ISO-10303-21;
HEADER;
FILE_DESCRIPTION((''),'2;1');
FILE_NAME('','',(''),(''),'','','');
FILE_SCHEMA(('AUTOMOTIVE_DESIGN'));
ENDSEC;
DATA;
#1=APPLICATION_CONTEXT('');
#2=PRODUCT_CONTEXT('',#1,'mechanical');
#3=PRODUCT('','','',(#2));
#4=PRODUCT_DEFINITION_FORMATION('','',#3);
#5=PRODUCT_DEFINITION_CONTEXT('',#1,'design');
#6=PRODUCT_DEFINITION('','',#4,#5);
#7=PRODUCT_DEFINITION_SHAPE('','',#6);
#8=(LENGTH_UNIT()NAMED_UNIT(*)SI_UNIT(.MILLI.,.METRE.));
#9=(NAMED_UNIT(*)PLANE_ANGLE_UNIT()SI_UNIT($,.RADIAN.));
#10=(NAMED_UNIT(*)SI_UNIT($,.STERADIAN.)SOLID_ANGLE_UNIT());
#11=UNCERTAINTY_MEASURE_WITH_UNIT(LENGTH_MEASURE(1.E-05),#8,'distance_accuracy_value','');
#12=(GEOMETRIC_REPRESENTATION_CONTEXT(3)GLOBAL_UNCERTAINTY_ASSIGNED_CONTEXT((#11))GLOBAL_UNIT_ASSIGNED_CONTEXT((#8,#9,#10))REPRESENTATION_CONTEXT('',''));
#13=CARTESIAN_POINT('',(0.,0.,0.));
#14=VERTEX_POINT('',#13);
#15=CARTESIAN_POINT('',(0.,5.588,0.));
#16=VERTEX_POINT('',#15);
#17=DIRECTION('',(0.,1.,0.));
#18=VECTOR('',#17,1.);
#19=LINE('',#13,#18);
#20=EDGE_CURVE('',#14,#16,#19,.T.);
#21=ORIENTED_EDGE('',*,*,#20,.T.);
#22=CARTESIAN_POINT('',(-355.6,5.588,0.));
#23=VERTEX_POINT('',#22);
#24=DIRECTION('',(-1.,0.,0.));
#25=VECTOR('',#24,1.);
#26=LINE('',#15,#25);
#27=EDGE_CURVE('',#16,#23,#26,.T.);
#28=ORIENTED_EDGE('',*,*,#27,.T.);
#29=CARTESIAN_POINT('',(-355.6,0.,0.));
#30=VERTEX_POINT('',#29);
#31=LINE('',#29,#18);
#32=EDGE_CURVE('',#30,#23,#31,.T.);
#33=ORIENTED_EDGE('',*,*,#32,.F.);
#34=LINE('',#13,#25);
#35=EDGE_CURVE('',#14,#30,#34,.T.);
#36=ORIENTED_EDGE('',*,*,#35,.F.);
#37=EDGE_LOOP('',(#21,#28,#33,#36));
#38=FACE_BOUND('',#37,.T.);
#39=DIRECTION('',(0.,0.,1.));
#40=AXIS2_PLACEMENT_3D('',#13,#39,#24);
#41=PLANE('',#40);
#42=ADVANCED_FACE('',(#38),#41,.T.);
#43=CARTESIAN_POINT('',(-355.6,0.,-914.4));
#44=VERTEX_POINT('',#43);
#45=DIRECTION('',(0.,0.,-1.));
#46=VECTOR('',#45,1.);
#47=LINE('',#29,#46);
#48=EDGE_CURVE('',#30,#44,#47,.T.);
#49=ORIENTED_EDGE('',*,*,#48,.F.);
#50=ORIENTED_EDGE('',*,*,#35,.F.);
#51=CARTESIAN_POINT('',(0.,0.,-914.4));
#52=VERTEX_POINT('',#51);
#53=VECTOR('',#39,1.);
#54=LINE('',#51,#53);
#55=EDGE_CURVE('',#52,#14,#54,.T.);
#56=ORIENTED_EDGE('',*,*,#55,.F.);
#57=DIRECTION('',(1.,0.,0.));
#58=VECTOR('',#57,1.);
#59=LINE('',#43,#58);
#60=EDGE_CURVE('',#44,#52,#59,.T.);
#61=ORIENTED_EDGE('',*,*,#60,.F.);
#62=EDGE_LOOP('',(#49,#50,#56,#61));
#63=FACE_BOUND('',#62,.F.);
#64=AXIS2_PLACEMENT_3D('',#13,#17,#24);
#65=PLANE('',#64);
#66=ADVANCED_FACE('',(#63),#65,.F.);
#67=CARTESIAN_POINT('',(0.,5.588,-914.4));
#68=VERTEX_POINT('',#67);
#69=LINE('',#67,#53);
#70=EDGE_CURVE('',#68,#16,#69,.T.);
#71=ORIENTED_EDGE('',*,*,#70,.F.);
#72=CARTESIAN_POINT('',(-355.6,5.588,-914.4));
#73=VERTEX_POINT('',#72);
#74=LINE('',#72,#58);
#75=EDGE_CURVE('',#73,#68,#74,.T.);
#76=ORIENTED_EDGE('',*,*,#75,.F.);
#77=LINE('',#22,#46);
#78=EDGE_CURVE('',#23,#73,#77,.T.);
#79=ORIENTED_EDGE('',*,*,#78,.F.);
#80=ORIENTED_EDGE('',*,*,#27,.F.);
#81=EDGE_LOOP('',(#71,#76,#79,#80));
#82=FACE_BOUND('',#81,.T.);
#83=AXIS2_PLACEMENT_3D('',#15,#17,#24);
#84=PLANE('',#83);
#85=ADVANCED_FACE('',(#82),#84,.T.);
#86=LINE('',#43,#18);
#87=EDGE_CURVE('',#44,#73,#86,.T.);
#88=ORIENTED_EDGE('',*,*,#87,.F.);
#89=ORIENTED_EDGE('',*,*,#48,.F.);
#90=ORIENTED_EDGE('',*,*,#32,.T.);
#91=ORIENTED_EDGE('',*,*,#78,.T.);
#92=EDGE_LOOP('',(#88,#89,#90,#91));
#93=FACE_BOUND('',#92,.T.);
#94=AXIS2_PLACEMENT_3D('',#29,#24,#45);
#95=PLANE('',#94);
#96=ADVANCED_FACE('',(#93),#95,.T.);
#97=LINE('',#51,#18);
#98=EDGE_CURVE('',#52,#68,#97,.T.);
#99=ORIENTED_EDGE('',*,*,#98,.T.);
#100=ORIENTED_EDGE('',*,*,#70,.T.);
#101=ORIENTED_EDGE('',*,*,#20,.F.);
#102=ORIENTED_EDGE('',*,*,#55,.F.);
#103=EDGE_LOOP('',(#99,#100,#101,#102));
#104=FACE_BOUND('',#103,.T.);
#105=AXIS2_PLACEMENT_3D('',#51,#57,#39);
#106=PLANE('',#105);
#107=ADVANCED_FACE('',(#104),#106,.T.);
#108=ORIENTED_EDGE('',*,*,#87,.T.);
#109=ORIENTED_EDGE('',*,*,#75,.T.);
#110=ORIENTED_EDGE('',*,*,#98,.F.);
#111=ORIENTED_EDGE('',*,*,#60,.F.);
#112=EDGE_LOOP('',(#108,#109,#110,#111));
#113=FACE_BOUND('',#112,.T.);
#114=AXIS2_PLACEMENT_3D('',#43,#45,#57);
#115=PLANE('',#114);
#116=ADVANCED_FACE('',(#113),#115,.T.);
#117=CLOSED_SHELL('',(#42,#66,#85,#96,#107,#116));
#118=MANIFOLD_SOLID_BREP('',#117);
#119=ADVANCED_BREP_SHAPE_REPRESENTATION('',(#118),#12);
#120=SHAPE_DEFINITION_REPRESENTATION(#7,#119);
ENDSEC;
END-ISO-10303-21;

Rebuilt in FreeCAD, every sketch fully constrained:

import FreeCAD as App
import Part
import Sketcher
Q = App.Units.Quantity


def add_polygon(sketch, points):
    """Adds a closed chain of lines whose ends are joined by coincident constraints."""
    first, n = sketch.GeometryCount, len(points)
    for a, b in zip(points, points[1:] + points[:1]):
        sketch.addGeometry(Part.LineSegment(App.Vector(*a, 0), App.Vector(*b, 0)), False)
    for i in range(n):
        sketch.addConstraint(Sketcher.Constraint("Coincident", first + i, 2, first + (i + 1) % n, 1))

doc = App.newDocument("Part")
body = doc.addObject("PartDesign::Body", "Body")

# Sketch on XZ plane
sketch1 = body.newObject("Sketcher::SketchObject", "Sketch")
sketch1.AttachmentSupport = (doc.getObject("XZ_Plane"), [""])
sketch1.MapMode = "FlatFace"
add_polygon(sketch1, [(-356, 0), (0, 0), (0, -914), (-356, -914)])  # lines 0-3
sketch1.addConstraint([
    Sketcher.Constraint("Horizontal", 0),
    Sketcher.Constraint("Vertical", 1),
    Sketcher.Constraint("Horizontal", 2),
    Sketcher.Constraint("Vertical", 3),
    Sketcher.Constraint("Coincident", 0, 2, -1, 1),
    Sketcher.Constraint("DistanceX", 0, 1, 0, 2, Q("14 in")),
    Sketcher.Constraint("DistanceY", 1, 2, 1, 1, Q("36 in")),
])
pad1 = body.newObject("PartDesign::Pad", "Pad")
pad1.Profile = sketch1
pad1.Length = Q("0.22 in")
pad1.Reversed = True

doc.recompute()
